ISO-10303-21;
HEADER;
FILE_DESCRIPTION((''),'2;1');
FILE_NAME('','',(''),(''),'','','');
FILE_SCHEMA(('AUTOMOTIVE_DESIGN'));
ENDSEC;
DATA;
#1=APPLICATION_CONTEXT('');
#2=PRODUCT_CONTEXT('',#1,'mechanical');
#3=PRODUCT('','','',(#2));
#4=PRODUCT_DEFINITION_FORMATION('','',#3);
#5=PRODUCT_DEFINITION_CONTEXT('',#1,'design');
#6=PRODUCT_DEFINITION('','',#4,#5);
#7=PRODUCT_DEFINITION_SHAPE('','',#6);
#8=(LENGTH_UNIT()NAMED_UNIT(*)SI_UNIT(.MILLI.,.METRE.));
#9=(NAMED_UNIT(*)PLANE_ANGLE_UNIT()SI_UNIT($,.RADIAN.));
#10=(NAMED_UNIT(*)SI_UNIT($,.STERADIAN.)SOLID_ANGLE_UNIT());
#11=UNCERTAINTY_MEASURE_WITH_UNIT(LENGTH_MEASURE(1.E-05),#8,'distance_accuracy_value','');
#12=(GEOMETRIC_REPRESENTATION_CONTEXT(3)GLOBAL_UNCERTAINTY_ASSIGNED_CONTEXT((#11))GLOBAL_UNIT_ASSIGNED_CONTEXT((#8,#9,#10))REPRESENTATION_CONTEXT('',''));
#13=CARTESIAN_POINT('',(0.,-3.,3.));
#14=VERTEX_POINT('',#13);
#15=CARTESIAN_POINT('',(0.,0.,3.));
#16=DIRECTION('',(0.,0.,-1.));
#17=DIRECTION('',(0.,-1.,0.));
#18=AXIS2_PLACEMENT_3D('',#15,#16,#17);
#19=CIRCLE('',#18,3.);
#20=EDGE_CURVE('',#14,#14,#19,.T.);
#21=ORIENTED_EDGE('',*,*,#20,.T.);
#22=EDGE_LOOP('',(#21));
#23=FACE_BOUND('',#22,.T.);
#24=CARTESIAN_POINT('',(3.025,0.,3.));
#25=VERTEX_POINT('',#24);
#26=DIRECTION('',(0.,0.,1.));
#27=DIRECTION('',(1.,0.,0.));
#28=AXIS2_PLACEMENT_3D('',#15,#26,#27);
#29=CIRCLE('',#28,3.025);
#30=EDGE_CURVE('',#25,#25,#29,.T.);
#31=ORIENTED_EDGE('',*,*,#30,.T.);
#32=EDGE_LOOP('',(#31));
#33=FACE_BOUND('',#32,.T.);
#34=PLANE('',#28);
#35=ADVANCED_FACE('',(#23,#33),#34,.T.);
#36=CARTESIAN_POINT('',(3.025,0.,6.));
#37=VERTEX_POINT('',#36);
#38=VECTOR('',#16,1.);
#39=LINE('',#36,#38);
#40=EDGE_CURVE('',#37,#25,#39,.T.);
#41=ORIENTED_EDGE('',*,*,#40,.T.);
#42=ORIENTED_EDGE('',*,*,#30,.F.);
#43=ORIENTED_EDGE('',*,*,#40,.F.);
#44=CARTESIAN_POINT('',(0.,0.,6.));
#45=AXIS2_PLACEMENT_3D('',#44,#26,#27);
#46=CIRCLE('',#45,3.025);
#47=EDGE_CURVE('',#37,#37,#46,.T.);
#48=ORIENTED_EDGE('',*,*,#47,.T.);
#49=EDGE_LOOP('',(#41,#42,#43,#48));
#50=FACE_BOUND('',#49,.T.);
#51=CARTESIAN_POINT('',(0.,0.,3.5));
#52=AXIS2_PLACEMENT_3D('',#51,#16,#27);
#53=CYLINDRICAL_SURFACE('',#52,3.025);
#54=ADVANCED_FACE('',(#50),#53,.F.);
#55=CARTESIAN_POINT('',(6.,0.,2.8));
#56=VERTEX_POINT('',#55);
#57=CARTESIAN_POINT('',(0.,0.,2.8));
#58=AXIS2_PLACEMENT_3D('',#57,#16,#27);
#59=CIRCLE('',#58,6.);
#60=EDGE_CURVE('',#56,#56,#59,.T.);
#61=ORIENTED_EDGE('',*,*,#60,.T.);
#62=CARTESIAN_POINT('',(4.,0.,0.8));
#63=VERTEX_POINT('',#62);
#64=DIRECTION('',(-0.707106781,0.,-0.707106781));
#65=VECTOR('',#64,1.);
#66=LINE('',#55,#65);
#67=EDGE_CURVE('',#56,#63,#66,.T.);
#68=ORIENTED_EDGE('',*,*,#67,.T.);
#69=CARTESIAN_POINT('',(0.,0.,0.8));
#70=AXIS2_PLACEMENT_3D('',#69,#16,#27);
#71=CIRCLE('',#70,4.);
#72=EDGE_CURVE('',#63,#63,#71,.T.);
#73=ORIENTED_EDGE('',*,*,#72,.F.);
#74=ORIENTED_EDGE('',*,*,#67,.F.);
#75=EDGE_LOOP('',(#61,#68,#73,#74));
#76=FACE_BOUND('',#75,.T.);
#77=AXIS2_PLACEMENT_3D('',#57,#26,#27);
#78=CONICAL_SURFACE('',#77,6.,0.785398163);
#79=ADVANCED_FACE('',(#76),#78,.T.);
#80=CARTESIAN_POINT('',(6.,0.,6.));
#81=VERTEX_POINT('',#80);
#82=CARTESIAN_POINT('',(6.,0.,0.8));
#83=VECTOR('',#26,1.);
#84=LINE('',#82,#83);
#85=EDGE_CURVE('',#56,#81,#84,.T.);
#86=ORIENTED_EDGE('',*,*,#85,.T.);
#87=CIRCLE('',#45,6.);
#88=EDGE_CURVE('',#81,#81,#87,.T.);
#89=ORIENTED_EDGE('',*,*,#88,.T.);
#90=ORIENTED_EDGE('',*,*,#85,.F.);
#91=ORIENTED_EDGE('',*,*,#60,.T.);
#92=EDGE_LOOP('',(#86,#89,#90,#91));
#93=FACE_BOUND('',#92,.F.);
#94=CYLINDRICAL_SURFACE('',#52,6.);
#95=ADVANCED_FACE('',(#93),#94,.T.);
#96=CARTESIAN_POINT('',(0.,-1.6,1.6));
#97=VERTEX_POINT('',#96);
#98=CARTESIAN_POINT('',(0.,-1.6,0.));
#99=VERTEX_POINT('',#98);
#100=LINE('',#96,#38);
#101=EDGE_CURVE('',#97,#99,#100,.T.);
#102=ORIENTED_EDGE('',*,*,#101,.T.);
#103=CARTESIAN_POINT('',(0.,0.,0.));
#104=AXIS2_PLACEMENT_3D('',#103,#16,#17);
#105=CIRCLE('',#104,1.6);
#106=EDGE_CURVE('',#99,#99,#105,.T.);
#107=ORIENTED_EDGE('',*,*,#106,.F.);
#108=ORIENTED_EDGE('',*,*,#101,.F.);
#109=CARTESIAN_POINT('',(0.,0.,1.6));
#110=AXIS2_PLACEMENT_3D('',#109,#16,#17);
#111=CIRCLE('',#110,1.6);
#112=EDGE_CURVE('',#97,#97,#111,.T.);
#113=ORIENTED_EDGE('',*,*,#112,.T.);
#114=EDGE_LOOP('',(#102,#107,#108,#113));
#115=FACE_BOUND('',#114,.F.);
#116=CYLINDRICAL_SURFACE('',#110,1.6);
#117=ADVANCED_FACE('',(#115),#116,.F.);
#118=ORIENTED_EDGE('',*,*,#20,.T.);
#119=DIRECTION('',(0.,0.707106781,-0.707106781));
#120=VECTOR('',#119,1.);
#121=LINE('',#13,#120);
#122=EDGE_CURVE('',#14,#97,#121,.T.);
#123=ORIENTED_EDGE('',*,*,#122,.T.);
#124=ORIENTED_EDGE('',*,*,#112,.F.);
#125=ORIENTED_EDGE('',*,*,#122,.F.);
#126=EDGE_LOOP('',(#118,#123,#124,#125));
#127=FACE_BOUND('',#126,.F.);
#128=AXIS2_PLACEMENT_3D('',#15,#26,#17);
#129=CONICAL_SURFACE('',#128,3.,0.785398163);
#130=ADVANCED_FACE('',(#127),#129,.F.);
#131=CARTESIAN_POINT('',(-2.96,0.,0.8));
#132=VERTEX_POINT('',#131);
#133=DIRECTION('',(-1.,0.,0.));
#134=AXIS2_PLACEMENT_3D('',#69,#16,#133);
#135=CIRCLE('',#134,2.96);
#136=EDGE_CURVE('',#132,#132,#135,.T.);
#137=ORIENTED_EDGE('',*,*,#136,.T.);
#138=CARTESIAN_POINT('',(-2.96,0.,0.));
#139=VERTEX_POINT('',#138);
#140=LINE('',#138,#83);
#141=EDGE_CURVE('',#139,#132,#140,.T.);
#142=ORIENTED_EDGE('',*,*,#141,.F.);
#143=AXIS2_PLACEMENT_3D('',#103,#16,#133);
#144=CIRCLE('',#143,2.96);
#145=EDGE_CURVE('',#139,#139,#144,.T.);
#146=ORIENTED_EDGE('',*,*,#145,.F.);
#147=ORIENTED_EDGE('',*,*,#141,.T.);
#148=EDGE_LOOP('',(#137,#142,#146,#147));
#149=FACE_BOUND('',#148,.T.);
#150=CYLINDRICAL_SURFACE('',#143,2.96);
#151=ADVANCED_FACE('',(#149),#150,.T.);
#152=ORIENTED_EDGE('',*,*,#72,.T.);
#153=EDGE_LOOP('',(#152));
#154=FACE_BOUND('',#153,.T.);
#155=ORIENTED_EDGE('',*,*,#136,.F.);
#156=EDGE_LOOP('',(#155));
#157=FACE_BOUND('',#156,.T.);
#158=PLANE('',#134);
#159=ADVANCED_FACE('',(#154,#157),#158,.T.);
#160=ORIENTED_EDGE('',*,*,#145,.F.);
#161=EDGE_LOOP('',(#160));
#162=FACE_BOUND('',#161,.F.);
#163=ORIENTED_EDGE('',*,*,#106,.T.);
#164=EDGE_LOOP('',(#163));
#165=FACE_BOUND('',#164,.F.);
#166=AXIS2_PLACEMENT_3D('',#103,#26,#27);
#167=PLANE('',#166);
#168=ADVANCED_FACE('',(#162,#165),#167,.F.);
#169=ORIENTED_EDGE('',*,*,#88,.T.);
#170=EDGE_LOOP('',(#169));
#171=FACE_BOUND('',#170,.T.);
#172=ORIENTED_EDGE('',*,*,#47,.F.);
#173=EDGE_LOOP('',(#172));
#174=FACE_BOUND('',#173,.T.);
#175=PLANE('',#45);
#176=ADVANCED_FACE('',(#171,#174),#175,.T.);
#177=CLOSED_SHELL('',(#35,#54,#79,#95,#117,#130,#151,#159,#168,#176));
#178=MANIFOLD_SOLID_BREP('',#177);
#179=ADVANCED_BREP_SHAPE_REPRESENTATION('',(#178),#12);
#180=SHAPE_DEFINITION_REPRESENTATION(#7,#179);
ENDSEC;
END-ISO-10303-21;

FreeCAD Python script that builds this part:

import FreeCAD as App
import Part
import Sketcher
Q = App.Units.Quantity


def edges_at(feature, points):
    """Names of the edges that pass closest to the given points."""
    edges = feature.Shape.Edges
    near = lambda p: min(range(len(edges)), key=lambda i: edges[i].distToShape(Part.Vertex(*p))[0])
    return sorted({f"Edge{near(p) + 1}" for p in points})

doc = App.newDocument("Part")
body = doc.addObject("PartDesign::Body", "Body")

sketch1 = body.newObject("Sketcher::SketchObject", "Sketch")
sketch1.AttachmentSupport = (doc.getObject("XY_Plane"), [""])
sketch1.MapMode = "FlatFace"
sketch1.addGeometry(Part.Circle(App.Vector(0, 0, 0), App.Vector(0, 0, 1), 6), False)
sketch1.addConstraint([
    Sketcher.Constraint("Coincident", 0, 3, -1, 1),
    Sketcher.Constraint("Diameter", 0, Q("12 mm")),
])
pad1 = body.newObject("PartDesign::Pad", "Pad")
pad1.Profile = sketch1
pad1.Length = 3.5

sketch2 = body.newObject("Sketcher::SketchObject", "Sketch001")
sketch2.AttachmentSupport = (doc.getObject("XY_Plane"), [""])
sketch2.MapMode = "FlatFace"
sketch2.AttachmentOffset = App.Placement(App.Vector(0, 0, 3.5), App.Rotation())
sketch2.addGeometry(Part.Circle(App.Vector(0, 0, 0), App.Vector(0, 0, 1), 1.6), False)
sketch2.addConstraint([
    Sketcher.Constraint("Coincident", 0, 3, -1, 1),
    Sketcher.Constraint("Diameter", 0, Q("3.1 mm")),
])
pocket1 = body.newObject("PartDesign::Pocket", "Pocket")
pocket1.Profile = sketch2
pocket1.Type = "ThroughAll"

sketch3 = body.newObject("Sketcher::SketchObject", "Sketch002")
sketch3.AttachmentSupport = (doc.getObject("XY_Plane"), [""])
sketch3.MapMode = "FlatFace"
sketch3.addGeometry([
    Part.Circle(App.Vector(0, 0, 0), App.Vector(0, 0, 1), 7.5),
    Part.Circle(App.Vector(0, 0, 0), App.Vector(0, 0, 1), 3),
], False)
sketch3.addConstraint([
    Sketcher.Constraint("Coincident", 0, 3, -1, 1),
    Sketcher.Constraint("Coincident", 1, 3, -1, 1),
    Sketcher.Constraint("Diameter", 0, Q("15 mm")),
    Sketcher.Constraint("Diameter", 1, Q("5.92 mm")),
])
pocket2 = body.newObject("PartDesign::Pocket", "Pocket001")
pocket2.Profile = sketch3
pocket2.Length = 0.8
pocket2.Reversed = True

sketch4 = body.newObject("Sketcher::SketchObject", "Sketch003")
sketch4.AttachmentSupport = (doc.getObject("XY_Plane"), [""])
sketch4.MapMode = "FlatFace"
sketch4.AttachmentOffset = App.Placement(App.Vector(0, 0, 3.5), App.Rotation())
sketch4.addGeometry(Part.Circle(App.Vector(0, 0, 0), App.Vector(0, 0, 1), 2.5), False)
sketch4.addConstraint([
    Sketcher.Constraint("Coincident", 0, 3, -1, 1),
    Sketcher.Constraint("Diameter", 0, Q("5 mm")),
])
pocket3 = body.newObject("PartDesign::Pocket", "Pocket002")
pocket3.Profile = sketch4
pocket3.Length = 1.5

sketch5 = body.newObject("Sketcher::SketchObject", "Sketch004")
sketch5.AttachmentSupport = (doc.getObject("XY_Plane"), [""])
sketch5.MapMode = "FlatFace"
sketch5.AttachmentOffset = App.Placement(App.Vector(0, 0, 3.5), App.Rotation())
sketch5.addGeometry([
    Part.Circle(App.Vector(0, 0, 0), App.Vector(0, 0, 1), 6),
    Part.Circle(App.Vector(0, 0, 0), App.Vector(0, 0, 1), 3),
], False)
sketch5.addConstraint([
    Sketcher.Constraint("Coincident", 0, 3, -1, 1),
    Sketcher.Constraint("Coincident", 1, 3, -1, 1),
    Sketcher.Constraint("Diameter", 1, Q("6.05 mm")),
    Sketcher.Constraint("Diameter", 0, Q("12 mm")),
])
pad2 = body.newObject("PartDesign::Pad", "Pad001")
pad2.Profile = sketch5
pad2.Length = 2.5
doc.recompute()

chamfer = body.newObject("PartDesign::Chamfer", "Chamfer")
chamfer.Base = (pad2, edges_at(pad2, [(-6, 0, 0.8)]))
chamfer.Size = 2

sketch6 = body.newObject("Sketcher::SketchObject", "Sketch005")
sketch6.AttachmentSupport = (doc.getObject("XY_Plane"), [""])
sketch6.MapMode = "FlatFace"
sketch6.AttachmentOffset = App.Placement(App.Vector(0, 0, 3.5), App.Rotation())
sketch6.addGeometry([
    Part.Circle(App.Vector(0, 0, 0), App.Vector(0, 0, 1), 3),
    Part.Circle(App.Vector(0, 0, 0), App.Vector(0, 0, 1), 2.5),
], False)
sketch6.addConstraint([
    Sketcher.Constraint("Coincident", 0, 3, -1, 1),
    Sketcher.Constraint("Coincident", 1, 3, -1, 1),
    Sketcher.Constraint("Diameter", 1, Q("5 mm")),
    Sketcher.Constraint("Diameter", 0, Q("6.05 mm")),
])
pocket4 = body.newObject("PartDesign::Pocket", "Pocket003")
pocket4.Profile = sketch6
pocket4.Length = 1.5

sketch7 = body.newObject("Sketcher::SketchObject", "Sketch006")
sketch7.AttachmentSupport = (doc.getObject("XY_Plane"), [""])
sketch7.MapMode = "FlatFace"
sketch7.AttachmentOffset = App.Placement(App.Vector(0, 0, 2), App.Rotation())
sketch7.addGeometry([
    Part.Circle(App.Vector(0, 0, 0), App.Vector(0, 0, 1), 3),
    Part.Circle(App.Vector(0, 0, 0), App.Vector(0, 0, 1), 1.6),
], False)
sketch7.addConstraint([
    Sketcher.Constraint("Coincident", 0, 3, -1, 1),
    Sketcher.Constraint("Coincident", 1, 3, -1, 1),
    Sketcher.Constraint("Diameter", 1, Q("3.1 mm")),
    Sketcher.Constraint("Diameter", 0, Q("6.05 mm")),
])
pad3 = body.newObject("PartDesign::Pad", "Pad002")
pad3.Profile = sketch7
pad3.Length = 1

sketch8 = body.newObject("Sketcher::SketchObject", "Sketch007")
sketch8.AttachmentSupport = (doc.getObject("XY_Plane"), [""])
sketch8.MapMode = "FlatFace"
sketch8.AttachmentOffset = App.Placement(App.Vector(0, 0, 3), App.Rotation())
sketch8.addGeometry(Part.Circle(App.Vector(0, 0, 0), App.Vector(0, 0, 1), 1.6), False)
sketch8.addConstraint([
    Sketcher.Constraint("Coincident", 0, 3, -1, 1),
    Sketcher.Constraint("Diameter", 0, Q("3.2 mm")),
])
doc.recompute()
hole = body.newObject("PartDesign::Hole", "Hole")
hole.Profile = sketch8
hole.ThreadType = "None"
hole.Diameter = 3.2
hole.DepthType = "ThroughAll"
hole.HoleCutType = "Countersink"
hole.HoleCutDiameter = 6
hole.HoleCutCountersinkAngle = 90

doc.recompute()
